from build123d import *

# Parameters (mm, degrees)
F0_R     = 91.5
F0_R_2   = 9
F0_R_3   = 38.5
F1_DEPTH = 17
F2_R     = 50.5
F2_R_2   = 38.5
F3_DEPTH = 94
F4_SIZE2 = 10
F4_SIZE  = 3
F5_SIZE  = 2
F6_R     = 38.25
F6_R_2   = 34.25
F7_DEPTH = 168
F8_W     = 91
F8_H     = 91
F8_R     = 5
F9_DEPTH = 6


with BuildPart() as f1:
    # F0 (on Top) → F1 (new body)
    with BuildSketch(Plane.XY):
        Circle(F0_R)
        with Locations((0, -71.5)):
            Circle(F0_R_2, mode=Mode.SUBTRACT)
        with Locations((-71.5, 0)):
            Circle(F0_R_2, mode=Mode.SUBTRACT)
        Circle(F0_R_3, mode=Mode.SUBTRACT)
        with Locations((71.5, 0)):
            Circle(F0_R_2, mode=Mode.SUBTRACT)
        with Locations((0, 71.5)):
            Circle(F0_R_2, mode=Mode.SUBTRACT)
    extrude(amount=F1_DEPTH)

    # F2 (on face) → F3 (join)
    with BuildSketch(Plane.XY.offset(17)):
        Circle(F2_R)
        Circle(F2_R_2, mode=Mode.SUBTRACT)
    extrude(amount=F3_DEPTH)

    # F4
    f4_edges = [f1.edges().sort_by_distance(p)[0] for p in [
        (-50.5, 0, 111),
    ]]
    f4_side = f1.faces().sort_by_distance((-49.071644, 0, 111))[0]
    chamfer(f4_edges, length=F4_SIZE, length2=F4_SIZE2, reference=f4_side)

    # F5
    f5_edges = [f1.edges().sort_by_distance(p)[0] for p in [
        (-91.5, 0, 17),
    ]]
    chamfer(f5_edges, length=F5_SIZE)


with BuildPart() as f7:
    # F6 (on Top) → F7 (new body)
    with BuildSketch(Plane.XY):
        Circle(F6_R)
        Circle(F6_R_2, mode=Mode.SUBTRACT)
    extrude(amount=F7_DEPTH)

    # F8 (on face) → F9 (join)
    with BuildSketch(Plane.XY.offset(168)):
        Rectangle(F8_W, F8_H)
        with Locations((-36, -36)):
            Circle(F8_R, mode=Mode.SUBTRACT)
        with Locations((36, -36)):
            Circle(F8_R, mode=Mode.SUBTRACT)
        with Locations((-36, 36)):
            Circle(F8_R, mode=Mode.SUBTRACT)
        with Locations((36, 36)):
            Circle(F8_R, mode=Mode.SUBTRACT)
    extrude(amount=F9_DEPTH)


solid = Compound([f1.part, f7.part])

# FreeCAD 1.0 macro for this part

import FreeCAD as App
import Part
import Sketcher


def edges_at(feature, points):
    """Names of the edges that pass closest to the given points."""
    edges = feature.Shape.Edges
    near = lambda p: min(range(len(edges)), key=lambda i: edges[i].distToShape(Part.Vertex(*p))[0])
    return sorted({f"Edge{near(p) + 1}" for p in points})


def add_polygon(sketch, points):
    """Adds a closed chain of lines whose ends are joined by coincident constraints."""
    first, n = sketch.GeometryCount, len(points)
    for a, b in zip(points, points[1:] + points[:1]):
        sketch.addGeometry(Part.LineSegment(App.Vector(*a, 0), App.Vector(*b, 0)), False)
    for i in range(n):
        sketch.addConstraint(Sketcher.Constraint("Coincident", first + i, 2, first + (i + 1) % n, 1))

doc = App.newDocument("Part")
body = doc.addObject("PartDesign::Body", "Body")

sketch1 = doc.addObject("Sketcher::SketchObject", "Sketch")
body.addObject(sketch1)
sketch1.AttachmentSupport = (doc.XY_Plane, [""])
sketch1.MapMode = "FlatFace"
sketch1.addGeometry(Part.Circle(App.Vector(0, 0, 0), App.Vector(0, 0, 1), 92), False)
sketch1.addGeometry(Part.Circle(App.Vector(0, -72, 0), App.Vector(0, 0, 1), 9), False)
sketch1.addGeometry(Part.Circle(App.Vector(-72, 0, 0), App.Vector(0, 0, 1), 9), False)
sketch1.addGeometry(Part.Circle(App.Vector(0, 0, 0), App.Vector(0, 0, 1), 38), False)
sketch1.addGeometry(Part.Circle(App.Vector(72, 0, 0), App.Vector(0, 0, 1), 9), False)
sketch1.addGeometry(Part.Circle(App.Vector(0, 72, 0), App.Vector(0, 0, 1), 9), False)
sketch1.addConstraint(Sketcher.Constraint("Coincident", 0, 3, -1, 1))
sketch1.addConstraint(Sketcher.Constraint("Coincident", 3, 3, -1, 1))
sketch1.addConstraint(Sketcher.Constraint("Equal", 1, 2))
sketch1.addConstraint(Sketcher.Constraint("Equal", 2, 4))
sketch1.addConstraint(Sketcher.Constraint("Equal", 4, 5))
sketch1.addConstraint(Sketcher.Constraint("Symmetric", 2, 3, 4, 3, -1, 1))
sketch1.addConstraint(Sketcher.Constraint("Symmetric", 1, 3, 5, 3, -1, 1))
sketch1.addConstraint(Sketcher.Constraint("PointOnObject", 1, 3, -2))
sketch1.addConstraint(Sketcher.Constraint("PointOnObject", 2, 3, -1))
sketch1.addConstraint(Sketcher.Constraint("Diameter", 0, 183.0))
sketch1.addConstraint(Sketcher.Constraint("Diameter", 1, 18.0))
sketch1.addConstraint(Sketcher.Constraint("Diameter", 3, 77.0))
sketch1.addConstraint(Sketcher.Constraint("DistanceX", 2, 3, 4, 3, 143.0))
sketch1.addConstraint(Sketcher.Constraint("DistanceY", 1, 3, 5, 3, 143.0))
pad1 = doc.addObject("PartDesign::Pad", "Pad")
body.addObject(pad1)
pad1.Profile = sketch1
pad1.Length = 17

sketch2 = doc.addObject("Sketcher::SketchObject", "Sketch001")
body.addObject(sketch2)
sketch2.AttachmentSupport = (doc.XY_Plane, [""])
sketch2.MapMode = "FlatFace"
sketch2.AttachmentOffset = App.Placement(App.Vector(0, 0, 17), App.Rotation())
sketch2.addGeometry(Part.Circle(App.Vector(0, 0, 0), App.Vector(0, 0, 1), 50), False)
sketch2.addGeometry(Part.Circle(App.Vector(0, 0, 0), App.Vector(0, 0, 1), 38), False)
sketch2.addConstraint(Sketcher.Constraint("Coincident", 0, 3, -1, 1))
sketch2.addConstraint(Sketcher.Constraint("Coincident", 1, 3, -1, 1))
sketch2.addConstraint(Sketcher.Constraint("Diameter", 0, 101.0))
sketch2.addConstraint(Sketcher.Constraint("Diameter", 1, 77.0))
pad2 = doc.addObject("PartDesign::Pad", "Pad001")
body.addObject(pad2)
pad2.Profile = sketch2
pad2.Length = 94
doc.recompute()

chamfer = doc.addObject("PartDesign::Chamfer", "Chamfer")
body.addObject(chamfer)
chamfer.Base = (pad2, edges_at(pad2, [(-50.5, 0, 111)]))
chamfer.ChamferType = "Two distances"
chamfer.Size = 3
chamfer.Size2 = 10
chamfer.FlipDirection = True
doc.recompute()

chamfer2 = doc.addObject("PartDesign::Chamfer", "Chamfer001")
body.addObject(chamfer2)
chamfer2.Base = (chamfer, edges_at(chamfer, [(-91.5, 0, 17)]))
chamfer2.Size = 2
body2 = doc.addObject("PartDesign::Body", "Body001")

sketch3 = doc.addObject("Sketcher::SketchObject", "Sketch002")
body2.addObject(sketch3)
sketch3.AttachmentSupport = (doc.getObject("XY_Plane001"), [""])
sketch3.MapMode = "FlatFace"
sketch3.addGeometry(Part.Circle(App.Vector(0, 0, 0), App.Vector(0, 0, 1), 38), False)
sketch3.addGeometry(Part.Circle(App.Vector(0, 0, 0), App.Vector(0, 0, 1), 34), False)
sketch3.addConstraint(Sketcher.Constraint("Coincident", 0, 3, -1, 1))
sketch3.addConstraint(Sketcher.Constraint("Coincident", 1, 3, -1, 1))
sketch3.addConstraint(Sketcher.Constraint("Diameter", 0, 76.5))
sketch3.addConstraint(Sketcher.Constraint("Diameter", 1, 68.5))
pad3 = doc.addObject("PartDesign::Pad", "Pad002")
body2.addObject(pad3)
pad3.Profile = sketch3
pad3.Length = 168

sketch4 = doc.addObject("Sketcher::SketchObject", "Sketch003")
body2.addObject(sketch4)
sketch4.AttachmentSupport = (doc.getObject("XY_Plane001"), [""])
sketch4.MapMode = "FlatFace"
sketch4.AttachmentOffset = App.Placement(App.Vector(0, 0, 168), App.Rotation())
add_polygon(sketch4, [(-46, 46), (-46, -46), (46, -46), (46, 46)])
sketch4.addGeometry(Part.Circle(App.Vector(-36, -36, 0), App.Vector(0, 0, 1), 5), False)
sketch4.addGeometry(Part.Circle(App.Vector(36, -36, 0), App.Vector(0, 0, 1), 5), False)
sketch4.addGeometry(Part.Circle(App.Vector(-36, 36, 0), App.Vector(0, 0, 1), 5), False)
sketch4.addGeometry(Part.Circle(App.Vector(36, 36, 0), App.Vector(0, 0, 1), 5), False)
sketch4.addConstraint(Sketcher.Constraint("Vertical", 0))
sketch4.addConstraint(Sketcher.Constraint("Horizontal", 1))
sketch4.addConstraint(Sketcher.Constraint("Vertical", 2))
sketch4.addConstraint(Sketcher.Constraint("Horizontal", 3))
sketch4.addConstraint(Sketcher.Constraint("Equal", 4, 5))
sketch4.addConstraint(Sketcher.Constraint("Equal", 5, 6))
sketch4.addConstraint(Sketcher.Constraint("Equal", 6, 7))
sketch4.addConstraint(Sketcher.Constraint("Symmetric", 5, 3, 6, 3, -1, 1))
sketch4.addConstraint(Sketcher.Constraint("Symmetric", 4, 3, 7, 3, -1, 1))
sketch4.addConstraint(Sketcher.Constraint("Symmetric", 0, 2, 2, 2, -1, 1))
sketch4.addConstraint(Sketcher.Constraint("Symmetric", 4, 3, 5, 3, -2))
sketch4.addConstraint(Sketcher.Constraint("Equal", 3, 0))
sketch4.addConstraint(Sketcher.Constraint("Diameter", 4, 10.0))
sketch4.addConstraint(Sketcher.Constraint("DistanceX", 1, 1, 1, 2, 91.0))
sketch4.addConstraint(Sketcher.Constraint("DistanceX", 4, 3, -1, 1, 36.0))
sketch4.addConstraint(Sketcher.Constraint("DistanceY", 4, 3, -1, 1, 36.0))
pad4 = doc.addObject("PartDesign::Pad", "Pad003")
body2.addObject(pad4)
pad4.Profile = sketch4
pad4.Length = 6

doc.recompute()
